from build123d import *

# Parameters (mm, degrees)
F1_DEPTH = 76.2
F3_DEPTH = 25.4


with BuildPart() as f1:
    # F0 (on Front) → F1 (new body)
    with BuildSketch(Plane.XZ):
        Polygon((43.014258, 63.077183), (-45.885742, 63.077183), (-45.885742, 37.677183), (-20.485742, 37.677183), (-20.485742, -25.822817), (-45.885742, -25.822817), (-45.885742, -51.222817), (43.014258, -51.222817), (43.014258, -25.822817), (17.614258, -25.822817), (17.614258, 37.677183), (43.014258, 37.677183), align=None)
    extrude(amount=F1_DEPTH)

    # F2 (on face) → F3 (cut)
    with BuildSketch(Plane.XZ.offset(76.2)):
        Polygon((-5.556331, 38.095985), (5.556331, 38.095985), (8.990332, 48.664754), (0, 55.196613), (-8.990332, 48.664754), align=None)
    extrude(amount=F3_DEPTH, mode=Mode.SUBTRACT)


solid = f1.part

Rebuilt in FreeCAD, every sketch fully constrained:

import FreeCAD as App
import Part
import Sketcher
Q = App.Units.Quantity


def add_polygon(sketch, points):
    """Adds a closed chain of lines whose ends are joined by coincident constraints."""
    first, n = sketch.GeometryCount, len(points)
    for a, b in zip(points, points[1:] + points[:1]):
        sketch.addGeometry(Part.LineSegment(App.Vector(*a, 0), App.Vector(*b, 0)), False)
    for i in range(n):
        sketch.addConstraint(Sketcher.Constraint("Coincident", first + i, 2, first + (i + 1) % n, 1))

doc = App.newDocument("Part")
params = doc.addObject("Spreadsheet::Sheet", "Params")
for row, (alias, value) in enumerate([
    ("sketch1_width", "1 in"),
    ("sketch1_width2", "3.5 in"),
    ("sketch1_height", "2.5 in"),
    ("pad1_length", "3 in"),
    ("pocket1_length", "1 in"),
], start=1):
    params.set(f"A{row}", alias)
    params.set(f"B{row}", "=" + value)
    params.setAlias(f"B{row}", alias)

body = doc.addObject("PartDesign::Body", "Body")

# Sketch on XZ plane
sketch1 = body.newObject("Sketcher::SketchObject", "Sketch")
sketch1.AttachmentSupport = (doc.getObject("XZ_Plane"), [""])
sketch1.MapMode = "FlatFace"
add_polygon(sketch1, [(43, 63), (-46, 63), (-46, 38), (-20, 38), (-20, -26), (-46, -26), (-46, -51), (43, -51), (43, -26), (18, -26), (18, 38), (43, 38)])  # lines 0-11
sketch1.addConstraint(Sketcher.Constraint("Horizontal", 0))
sketch1.addConstraint(Sketcher.Constraint("Vertical", 1))
sketch1.addConstraint(Sketcher.Constraint("Horizontal", 2))
sketch1.addConstraint(Sketcher.Constraint("Vertical", 3))
sketch1.addConstraint(Sketcher.Constraint("Horizontal", 4))
sketch1.addConstraint(Sketcher.Constraint("Vertical", 5))
sketch1.addConstraint(Sketcher.Constraint("Horizontal", 6))
sketch1.addConstraint(Sketcher.Constraint("Vertical", 7))
sketch1.addConstraint(Sketcher.Constraint("Horizontal", 8))
sketch1.addConstraint(Sketcher.Constraint("Vertical", 9))
sketch1.addConstraint(Sketcher.Constraint("Horizontal", 10))
sketch1.addConstraint(Sketcher.Constraint("Vertical", 11))
sketch1.addConstraint(Sketcher.Constraint("Horizontal", 4, 2, 7, 2))
sketch1.addConstraint(Sketcher.Constraint("Horizontal", 2, 2, 9, 2))
sketch1.addConstraint(Sketcher.Constraint("Vertical", 1, 2, 4, 2))
sketch1.addConstraint(Sketcher.Constraint("Vertical", 7, 2, 10, 2))
sketch1.addConstraint(Sketcher.Constraint("Equal", 4, 8))
sketch1.addConstraint(Sketcher.Constraint("Equal", 10, 1))
sketch1.addConstraint(Sketcher.Constraint("Equal", 1, 5))
sketch1.addConstraint(Sketcher.Constraint("DistanceX", 2, 1, 2, 2, Q("1 in")))
sketch1.addConstraint(Sketcher.Constraint("DistanceX", 0, 2, 0, 1, Q("3.5 in")))
sketch1.addConstraint(Sketcher.Constraint("DistanceY", 3, 2, 3, 1, Q("2.5 in")))
sketch1.addConstraint(Sketcher.Constraint("DistanceX", 2, 2, -1, 1, 20.485742))
sketch1.addConstraint(Sketcher.Constraint("DistanceY", -1, 1, 0, 2, 63.077183))
sketch1.setExpression("Constraints[31]", "Params.sketch1_width")
sketch1.setExpression("Constraints[32]", "Params.sketch1_width2")
sketch1.setExpression("Constraints[33]", "Params.sketch1_height")
pad1 = body.newObject("PartDesign::Pad", "Pad")
pad1.Profile = sketch1
pad1.setExpression("Length", "Params.pad1_length")

# Sketch on XZ plane
sketch2 = body.newObject("Sketcher::SketchObject", "Sketch001")
sketch2.AttachmentSupport = (doc.getObject("XZ_Plane"), [""])
sketch2.MapMode = "FlatFace"
sketch2.AttachmentOffset = App.Placement(App.Vector(0, 0, 3 * 25.4), App.Rotation())
add_polygon(sketch2, [(-6, 38), (6, 38), (9, 49), (0, 55), (-9, 49)])  # lines 0-4
sketch2.addConstraint(Sketcher.Constraint("Horizontal", 0))
sketch2.addConstraint(Sketcher.Constraint("Symmetric", 1, 2, 3, 2, -2))
sketch2.addConstraint(Sketcher.Constraint("PointOnObject", 2, 2, -2))
sketch2.addConstraint(Sketcher.Constraint("Equal", 1, 2))
sketch2.addConstraint(Sketcher.Constraint("Equal", 3, 4))
sketch2.addConstraint(Sketcher.Constraint("Angle", 1, Q("72.000001 deg")))
sketch2.addConstraint(Sketcher.Constraint("Angle", 2, Q("143.999998 deg")))
sketch2.addConstraint(Sketcher.Constraint("DistanceX", 3, 2, 1, 2, Q("0.7079002 in")))
sketch2.addConstraint(Sketcher.Constraint("DistanceY", -1, 1, 0, 2, 38.095985))
pocket1 = body.newObject("PartDesign::Pocket", "Pocket")
pocket1.Profile = sketch2
pocket1.setExpression("Length", "Params.pocket1_length")
pocket1.Reversed = True

doc.recompute()
